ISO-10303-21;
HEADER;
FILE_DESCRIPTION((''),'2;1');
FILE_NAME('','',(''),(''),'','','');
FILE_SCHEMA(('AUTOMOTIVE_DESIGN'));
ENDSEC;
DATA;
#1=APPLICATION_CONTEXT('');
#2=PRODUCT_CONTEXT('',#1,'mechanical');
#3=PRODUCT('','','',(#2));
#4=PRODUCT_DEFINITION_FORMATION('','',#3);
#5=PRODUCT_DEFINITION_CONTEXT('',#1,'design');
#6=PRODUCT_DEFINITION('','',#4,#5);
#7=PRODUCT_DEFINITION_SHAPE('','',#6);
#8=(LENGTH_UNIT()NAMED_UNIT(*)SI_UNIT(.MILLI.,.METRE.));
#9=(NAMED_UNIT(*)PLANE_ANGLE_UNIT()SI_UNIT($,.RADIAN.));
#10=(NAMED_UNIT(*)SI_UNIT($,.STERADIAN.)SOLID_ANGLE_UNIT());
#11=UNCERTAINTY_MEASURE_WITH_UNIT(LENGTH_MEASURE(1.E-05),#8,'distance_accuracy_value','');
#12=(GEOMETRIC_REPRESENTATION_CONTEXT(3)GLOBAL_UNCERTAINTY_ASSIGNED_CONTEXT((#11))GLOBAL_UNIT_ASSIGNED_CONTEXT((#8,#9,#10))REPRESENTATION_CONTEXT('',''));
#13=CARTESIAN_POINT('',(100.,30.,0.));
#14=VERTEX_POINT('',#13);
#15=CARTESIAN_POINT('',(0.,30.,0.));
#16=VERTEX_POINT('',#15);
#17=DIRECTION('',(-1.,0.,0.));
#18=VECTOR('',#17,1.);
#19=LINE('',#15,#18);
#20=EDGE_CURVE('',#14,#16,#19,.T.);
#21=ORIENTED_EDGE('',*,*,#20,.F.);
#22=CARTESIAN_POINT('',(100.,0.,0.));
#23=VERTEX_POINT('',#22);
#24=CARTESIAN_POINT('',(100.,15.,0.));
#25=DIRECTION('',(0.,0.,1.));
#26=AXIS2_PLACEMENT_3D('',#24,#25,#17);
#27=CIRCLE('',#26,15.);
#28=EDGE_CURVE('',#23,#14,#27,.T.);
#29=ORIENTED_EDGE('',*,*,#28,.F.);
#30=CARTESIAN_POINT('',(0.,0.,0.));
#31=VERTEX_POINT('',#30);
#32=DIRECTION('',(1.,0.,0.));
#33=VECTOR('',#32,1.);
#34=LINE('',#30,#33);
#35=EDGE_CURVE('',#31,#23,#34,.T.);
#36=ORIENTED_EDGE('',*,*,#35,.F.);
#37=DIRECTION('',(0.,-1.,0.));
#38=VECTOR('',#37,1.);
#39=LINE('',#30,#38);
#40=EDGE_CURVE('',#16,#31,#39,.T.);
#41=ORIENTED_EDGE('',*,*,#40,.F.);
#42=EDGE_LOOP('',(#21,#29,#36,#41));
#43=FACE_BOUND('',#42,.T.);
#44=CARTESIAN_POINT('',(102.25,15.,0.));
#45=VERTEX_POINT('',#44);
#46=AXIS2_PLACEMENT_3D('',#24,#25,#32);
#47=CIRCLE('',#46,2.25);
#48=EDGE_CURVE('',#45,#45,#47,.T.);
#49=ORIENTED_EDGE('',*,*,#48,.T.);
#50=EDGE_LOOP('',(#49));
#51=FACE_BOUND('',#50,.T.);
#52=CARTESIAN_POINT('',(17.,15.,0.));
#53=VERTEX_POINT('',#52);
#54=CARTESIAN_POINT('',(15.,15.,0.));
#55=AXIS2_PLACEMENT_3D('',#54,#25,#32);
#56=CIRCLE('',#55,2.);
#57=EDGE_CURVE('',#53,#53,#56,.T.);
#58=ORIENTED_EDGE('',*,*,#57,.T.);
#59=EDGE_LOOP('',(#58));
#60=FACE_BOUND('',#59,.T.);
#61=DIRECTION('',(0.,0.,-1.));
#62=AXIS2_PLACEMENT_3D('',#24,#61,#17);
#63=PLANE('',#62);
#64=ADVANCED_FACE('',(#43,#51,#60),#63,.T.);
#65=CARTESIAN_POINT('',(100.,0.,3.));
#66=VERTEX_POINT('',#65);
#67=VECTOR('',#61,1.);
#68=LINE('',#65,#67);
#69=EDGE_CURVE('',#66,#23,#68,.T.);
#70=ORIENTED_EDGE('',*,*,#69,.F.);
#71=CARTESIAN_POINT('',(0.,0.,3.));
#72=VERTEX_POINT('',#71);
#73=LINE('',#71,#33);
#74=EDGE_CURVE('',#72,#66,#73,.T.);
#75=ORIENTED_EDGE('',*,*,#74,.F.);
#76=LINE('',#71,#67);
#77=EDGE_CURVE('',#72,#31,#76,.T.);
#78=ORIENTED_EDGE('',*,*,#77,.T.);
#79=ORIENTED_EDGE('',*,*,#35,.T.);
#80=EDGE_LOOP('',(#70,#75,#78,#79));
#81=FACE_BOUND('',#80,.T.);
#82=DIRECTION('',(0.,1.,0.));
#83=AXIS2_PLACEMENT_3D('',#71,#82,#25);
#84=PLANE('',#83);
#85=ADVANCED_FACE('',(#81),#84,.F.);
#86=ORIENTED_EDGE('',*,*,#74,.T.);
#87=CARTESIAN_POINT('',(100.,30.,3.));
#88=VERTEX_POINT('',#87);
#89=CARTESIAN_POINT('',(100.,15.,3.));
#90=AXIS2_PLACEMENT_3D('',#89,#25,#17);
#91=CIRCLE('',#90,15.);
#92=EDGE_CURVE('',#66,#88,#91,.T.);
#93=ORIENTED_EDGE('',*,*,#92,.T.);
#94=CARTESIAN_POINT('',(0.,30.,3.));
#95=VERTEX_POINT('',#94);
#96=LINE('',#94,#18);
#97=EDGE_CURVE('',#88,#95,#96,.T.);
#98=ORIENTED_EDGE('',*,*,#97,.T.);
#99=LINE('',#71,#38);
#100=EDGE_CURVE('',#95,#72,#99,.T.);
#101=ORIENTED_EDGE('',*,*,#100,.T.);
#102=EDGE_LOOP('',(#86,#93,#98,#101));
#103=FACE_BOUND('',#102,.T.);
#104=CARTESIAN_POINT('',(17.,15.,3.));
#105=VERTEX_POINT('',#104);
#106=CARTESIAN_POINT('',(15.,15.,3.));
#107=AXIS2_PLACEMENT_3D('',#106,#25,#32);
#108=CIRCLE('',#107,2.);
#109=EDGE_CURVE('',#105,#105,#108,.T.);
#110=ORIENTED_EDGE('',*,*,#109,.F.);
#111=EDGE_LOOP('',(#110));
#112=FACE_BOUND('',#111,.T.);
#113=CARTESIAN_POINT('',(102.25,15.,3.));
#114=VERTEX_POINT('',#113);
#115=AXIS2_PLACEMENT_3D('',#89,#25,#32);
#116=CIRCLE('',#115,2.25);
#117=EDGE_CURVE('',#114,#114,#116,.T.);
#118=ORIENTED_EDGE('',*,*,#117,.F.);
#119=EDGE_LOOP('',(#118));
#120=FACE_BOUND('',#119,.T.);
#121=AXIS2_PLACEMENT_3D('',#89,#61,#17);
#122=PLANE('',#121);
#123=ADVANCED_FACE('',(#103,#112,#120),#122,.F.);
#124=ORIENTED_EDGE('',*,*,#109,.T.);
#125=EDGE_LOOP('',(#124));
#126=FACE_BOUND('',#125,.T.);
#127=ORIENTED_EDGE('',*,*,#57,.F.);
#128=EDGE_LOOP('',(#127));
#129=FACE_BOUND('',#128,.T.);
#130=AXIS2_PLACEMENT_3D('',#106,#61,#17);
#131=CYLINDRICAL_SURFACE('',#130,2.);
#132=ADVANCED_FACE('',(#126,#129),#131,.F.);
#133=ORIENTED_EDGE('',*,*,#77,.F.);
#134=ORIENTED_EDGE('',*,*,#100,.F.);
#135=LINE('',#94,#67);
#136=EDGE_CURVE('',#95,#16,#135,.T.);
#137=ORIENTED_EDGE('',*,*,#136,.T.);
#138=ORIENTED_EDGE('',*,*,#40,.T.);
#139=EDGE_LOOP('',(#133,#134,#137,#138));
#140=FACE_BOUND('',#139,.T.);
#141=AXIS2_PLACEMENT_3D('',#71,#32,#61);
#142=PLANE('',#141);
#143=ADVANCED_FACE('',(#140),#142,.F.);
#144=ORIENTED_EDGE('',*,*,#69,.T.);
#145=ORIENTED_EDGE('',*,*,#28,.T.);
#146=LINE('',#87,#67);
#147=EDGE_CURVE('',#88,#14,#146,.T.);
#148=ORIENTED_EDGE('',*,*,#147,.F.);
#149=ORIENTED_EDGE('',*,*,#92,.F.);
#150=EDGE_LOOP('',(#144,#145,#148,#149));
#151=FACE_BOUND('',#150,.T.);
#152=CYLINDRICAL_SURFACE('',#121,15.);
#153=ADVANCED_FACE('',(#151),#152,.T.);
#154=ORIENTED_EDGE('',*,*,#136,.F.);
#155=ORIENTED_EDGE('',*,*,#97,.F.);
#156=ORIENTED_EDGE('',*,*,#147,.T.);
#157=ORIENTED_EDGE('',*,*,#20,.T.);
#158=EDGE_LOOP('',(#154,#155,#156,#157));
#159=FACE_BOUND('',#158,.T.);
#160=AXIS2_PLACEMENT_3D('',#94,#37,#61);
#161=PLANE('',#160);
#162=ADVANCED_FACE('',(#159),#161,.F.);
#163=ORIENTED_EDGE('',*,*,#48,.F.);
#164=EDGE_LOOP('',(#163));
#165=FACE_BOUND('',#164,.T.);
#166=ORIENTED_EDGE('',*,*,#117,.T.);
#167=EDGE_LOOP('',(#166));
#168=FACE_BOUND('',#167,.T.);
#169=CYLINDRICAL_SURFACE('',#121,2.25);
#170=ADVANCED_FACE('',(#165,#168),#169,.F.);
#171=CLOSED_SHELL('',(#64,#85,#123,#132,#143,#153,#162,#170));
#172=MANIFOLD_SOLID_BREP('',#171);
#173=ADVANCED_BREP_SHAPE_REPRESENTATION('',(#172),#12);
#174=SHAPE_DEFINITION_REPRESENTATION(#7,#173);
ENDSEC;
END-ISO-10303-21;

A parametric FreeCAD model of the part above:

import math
import FreeCAD as App
import Part
import Sketcher
from FreeCAD import Vector
Q = App.Units.Quantity

doc = App.newDocument("Part")
body = doc.addObject("PartDesign::Body", "Body")

sketch1 = doc.addObject("Sketcher::SketchObject", "Sketch")
body.addObject(sketch1)
sketch1.AttachmentSupport = (doc.XY_Plane, [""])
sketch1.MapMode = "FlatFace"
sketch1.addGeometry(Part.LineSegment(Vector(0, 0, 0), Vector(100, 0, 0)), False)
sketch1.addGeometry(Part.ArcOfCircle(Part.Circle(Vector(100, 15, 0), Vector(0, 0, 1), 15), math.radians(-90), math.radians(90)), False)
sketch1.addGeometry(Part.LineSegment(Vector(100, 30, 0), Vector(0, 30, 0)), False)
sketch1.addGeometry(Part.LineSegment(Vector(0, 30, 0), Vector(0, 0, 0)), False)
sketch1.addGeometry(Part.Circle(Vector(15, 15, 0), Vector(0, 0, 1), 2), False)
sketch1.addGeometry(Part.Circle(Vector(100, 15, 0), Vector(0, 0, 1), 2.2), False)
sketch1.addConstraint(Sketcher.Constraint("Tangent", 0, 2, 1, 1))
sketch1.addConstraint(Sketcher.Constraint("Tangent", 1, 2, 2, 1))
sketch1.addConstraint(Sketcher.Constraint("Coincident", 2, 2, 3, 1))
sketch1.addConstraint(Sketcher.Constraint("Coincident", 3, 2, 0, 1))
sketch1.addConstraint(Sketcher.Constraint("Horizontal", 0))
sketch1.addConstraint(Sketcher.Constraint("Horizontal", 2))
sketch1.addConstraint(Sketcher.Constraint("Vertical", 3))
sketch1.addConstraint(Sketcher.Constraint("Coincident", 3, 2, -1, 1))
sketch1.addConstraint(Sketcher.Constraint("Coincident", 5, 3, 1, 3))
sketch1.addConstraint(Sketcher.Constraint("Horizontal", 1, 3, 4, 3))
sketch1.addConstraint(Sketcher.Constraint("Diameter", 4, Q("4 mm")))
sketch1.addConstraint(Sketcher.Constraint("Radius", 1, Q("15 mm")))
sketch1.addConstraint(Sketcher.Constraint("Diameter", 5, Q("4.5 mm")))
sketch1.addConstraint(Sketcher.Constraint("DistanceX", 0, 1, 0, 2, Q("100 mm")))
sketch1.addConstraint(Sketcher.Constraint("DistanceX", -1, 1, 4, 3, Q("15 mm")))
pad1 = doc.addObject("PartDesign::Pad", "Pad")
body.addObject(pad1)
pad1.Profile = sketch1
pad1.Length = 3

doc.recompute()
